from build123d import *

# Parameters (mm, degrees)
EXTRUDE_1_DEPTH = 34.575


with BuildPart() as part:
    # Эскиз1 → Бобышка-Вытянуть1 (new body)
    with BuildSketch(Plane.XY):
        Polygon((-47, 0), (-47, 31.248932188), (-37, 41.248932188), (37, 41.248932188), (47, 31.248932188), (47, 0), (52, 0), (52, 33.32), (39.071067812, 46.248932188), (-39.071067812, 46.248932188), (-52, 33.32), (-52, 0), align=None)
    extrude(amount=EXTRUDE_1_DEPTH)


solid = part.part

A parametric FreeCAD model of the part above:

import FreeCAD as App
import Part
import Sketcher
from FreeCAD import Vector

doc = App.newDocument("Part")
body = doc.addObject("PartDesign::Body", "Body")

sketch1 = body.newObject("Sketcher::SketchObject", "Sketch")
sketch1.AttachmentSupport = (doc.getObject("XY_Plane"), [""])
sketch1.MapMode = "FlatFace"
sketch1.addGeometry([
    Part.LineSegment(Vector(-47, 0, 0), Vector(-47, 31, 0)),
    Part.LineSegment(Vector(-47, 31, 0), Vector(-37, 41, 0)),
    Part.LineSegment(Vector(-37, 41, 0), Vector(37, 41, 0)),
    Part.LineSegment(Vector(37, 41, 0), Vector(47, 31, 0)),
    Part.LineSegment(Vector(47, 31, 0), Vector(47, 0, 0)),
    Part.LineSegment(Vector(47, 0, 0), Vector(52, 0, 0)),
    Part.LineSegment(Vector(52, 0, 0), Vector(52, 33, 0)),
    Part.LineSegment(Vector(52, 33, 0), Vector(39, 46, 0)),
    Part.LineSegment(Vector(39, 46, 0), Vector(-39, 46, 0)),
    Part.LineSegment(Vector(-39, 46, 0), Vector(-52, 33, 0)),
    Part.LineSegment(Vector(-52, 33, 0), Vector(-52, 0, 0)),
    Part.LineSegment(Vector(-52, 0, 0), Vector(-47, 0, 0)),
], False)
sketch1.addConstraint([
    Sketcher.Constraint("Coincident", 0, 2, 1, 1),
    Sketcher.Constraint("Coincident", 1, 2, 2, 1),
    Sketcher.Constraint("Coincident", 2, 2, 3, 1),
    Sketcher.Constraint("Coincident", 3, 2, 4, 1),
    Sketcher.Constraint("Coincident", 4, 2, 5, 1),
    Sketcher.Constraint("Coincident", 5, 2, 6, 1),
    Sketcher.Constraint("Coincident", 6, 2, 7, 1),
    Sketcher.Constraint("Coincident", 7, 2, 8, 1),
    Sketcher.Constraint("Coincident", 8, 2, 9, 1),
    Sketcher.Constraint("Coincident", 9, 2, 10, 1),
    Sketcher.Constraint("Coincident", 10, 2, 11, 1),
    Sketcher.Constraint("Coincident", 11, 2, 0, 1),
    Sketcher.Constraint("Vertical", 0),
    Sketcher.Constraint("Horizontal", 2),
    Sketcher.Constraint("Vertical", 4),
    Sketcher.Constraint("Horizontal", 5),
    Sketcher.Constraint("Vertical", 6),
    Sketcher.Constraint("Horizontal", 8),
    Sketcher.Constraint("Vertical", 10),
    Sketcher.Constraint("Horizontal", 11),
    Sketcher.Constraint("Symmetric", 5, 2, 10, 2, -1, 1),
    Sketcher.Constraint("Symmetric", 0, 2, 3, 2, -2),
    Sketcher.Constraint("PointOnObject", 4, 2, -1),
    Sketcher.Constraint("Perpendicular", 1, 3),
    Sketcher.Constraint("Parallel", 3, 7),
    Sketcher.Constraint("Perpendicular", 7, 9),
    Sketcher.Constraint("Horizontal", 6, 2, 9, 2),
    Sketcher.Constraint("Equal", 1, 3),
    Sketcher.Constraint("DistanceX", 2, 1, 2, 2, 74.0),
    Sketcher.Constraint("DistanceX", 5, 1, 5, 2, 5.0),
    Sketcher.Constraint("DistanceX", 0, 2, -1, 1, 47.0),
    Sketcher.Constraint("DistanceY", 2, 2, 7, 2, 5.0),
    Sketcher.Constraint("DistanceY", 6, 1, 6, 2, 33.32),
    Sketcher.Constraint("Distance", 7, 18.284271),
])
pad1 = body.newObject("PartDesign::Pad", "Pad")
pad1.Profile = sketch1
pad1.Length = 34.575

doc.recompute()
